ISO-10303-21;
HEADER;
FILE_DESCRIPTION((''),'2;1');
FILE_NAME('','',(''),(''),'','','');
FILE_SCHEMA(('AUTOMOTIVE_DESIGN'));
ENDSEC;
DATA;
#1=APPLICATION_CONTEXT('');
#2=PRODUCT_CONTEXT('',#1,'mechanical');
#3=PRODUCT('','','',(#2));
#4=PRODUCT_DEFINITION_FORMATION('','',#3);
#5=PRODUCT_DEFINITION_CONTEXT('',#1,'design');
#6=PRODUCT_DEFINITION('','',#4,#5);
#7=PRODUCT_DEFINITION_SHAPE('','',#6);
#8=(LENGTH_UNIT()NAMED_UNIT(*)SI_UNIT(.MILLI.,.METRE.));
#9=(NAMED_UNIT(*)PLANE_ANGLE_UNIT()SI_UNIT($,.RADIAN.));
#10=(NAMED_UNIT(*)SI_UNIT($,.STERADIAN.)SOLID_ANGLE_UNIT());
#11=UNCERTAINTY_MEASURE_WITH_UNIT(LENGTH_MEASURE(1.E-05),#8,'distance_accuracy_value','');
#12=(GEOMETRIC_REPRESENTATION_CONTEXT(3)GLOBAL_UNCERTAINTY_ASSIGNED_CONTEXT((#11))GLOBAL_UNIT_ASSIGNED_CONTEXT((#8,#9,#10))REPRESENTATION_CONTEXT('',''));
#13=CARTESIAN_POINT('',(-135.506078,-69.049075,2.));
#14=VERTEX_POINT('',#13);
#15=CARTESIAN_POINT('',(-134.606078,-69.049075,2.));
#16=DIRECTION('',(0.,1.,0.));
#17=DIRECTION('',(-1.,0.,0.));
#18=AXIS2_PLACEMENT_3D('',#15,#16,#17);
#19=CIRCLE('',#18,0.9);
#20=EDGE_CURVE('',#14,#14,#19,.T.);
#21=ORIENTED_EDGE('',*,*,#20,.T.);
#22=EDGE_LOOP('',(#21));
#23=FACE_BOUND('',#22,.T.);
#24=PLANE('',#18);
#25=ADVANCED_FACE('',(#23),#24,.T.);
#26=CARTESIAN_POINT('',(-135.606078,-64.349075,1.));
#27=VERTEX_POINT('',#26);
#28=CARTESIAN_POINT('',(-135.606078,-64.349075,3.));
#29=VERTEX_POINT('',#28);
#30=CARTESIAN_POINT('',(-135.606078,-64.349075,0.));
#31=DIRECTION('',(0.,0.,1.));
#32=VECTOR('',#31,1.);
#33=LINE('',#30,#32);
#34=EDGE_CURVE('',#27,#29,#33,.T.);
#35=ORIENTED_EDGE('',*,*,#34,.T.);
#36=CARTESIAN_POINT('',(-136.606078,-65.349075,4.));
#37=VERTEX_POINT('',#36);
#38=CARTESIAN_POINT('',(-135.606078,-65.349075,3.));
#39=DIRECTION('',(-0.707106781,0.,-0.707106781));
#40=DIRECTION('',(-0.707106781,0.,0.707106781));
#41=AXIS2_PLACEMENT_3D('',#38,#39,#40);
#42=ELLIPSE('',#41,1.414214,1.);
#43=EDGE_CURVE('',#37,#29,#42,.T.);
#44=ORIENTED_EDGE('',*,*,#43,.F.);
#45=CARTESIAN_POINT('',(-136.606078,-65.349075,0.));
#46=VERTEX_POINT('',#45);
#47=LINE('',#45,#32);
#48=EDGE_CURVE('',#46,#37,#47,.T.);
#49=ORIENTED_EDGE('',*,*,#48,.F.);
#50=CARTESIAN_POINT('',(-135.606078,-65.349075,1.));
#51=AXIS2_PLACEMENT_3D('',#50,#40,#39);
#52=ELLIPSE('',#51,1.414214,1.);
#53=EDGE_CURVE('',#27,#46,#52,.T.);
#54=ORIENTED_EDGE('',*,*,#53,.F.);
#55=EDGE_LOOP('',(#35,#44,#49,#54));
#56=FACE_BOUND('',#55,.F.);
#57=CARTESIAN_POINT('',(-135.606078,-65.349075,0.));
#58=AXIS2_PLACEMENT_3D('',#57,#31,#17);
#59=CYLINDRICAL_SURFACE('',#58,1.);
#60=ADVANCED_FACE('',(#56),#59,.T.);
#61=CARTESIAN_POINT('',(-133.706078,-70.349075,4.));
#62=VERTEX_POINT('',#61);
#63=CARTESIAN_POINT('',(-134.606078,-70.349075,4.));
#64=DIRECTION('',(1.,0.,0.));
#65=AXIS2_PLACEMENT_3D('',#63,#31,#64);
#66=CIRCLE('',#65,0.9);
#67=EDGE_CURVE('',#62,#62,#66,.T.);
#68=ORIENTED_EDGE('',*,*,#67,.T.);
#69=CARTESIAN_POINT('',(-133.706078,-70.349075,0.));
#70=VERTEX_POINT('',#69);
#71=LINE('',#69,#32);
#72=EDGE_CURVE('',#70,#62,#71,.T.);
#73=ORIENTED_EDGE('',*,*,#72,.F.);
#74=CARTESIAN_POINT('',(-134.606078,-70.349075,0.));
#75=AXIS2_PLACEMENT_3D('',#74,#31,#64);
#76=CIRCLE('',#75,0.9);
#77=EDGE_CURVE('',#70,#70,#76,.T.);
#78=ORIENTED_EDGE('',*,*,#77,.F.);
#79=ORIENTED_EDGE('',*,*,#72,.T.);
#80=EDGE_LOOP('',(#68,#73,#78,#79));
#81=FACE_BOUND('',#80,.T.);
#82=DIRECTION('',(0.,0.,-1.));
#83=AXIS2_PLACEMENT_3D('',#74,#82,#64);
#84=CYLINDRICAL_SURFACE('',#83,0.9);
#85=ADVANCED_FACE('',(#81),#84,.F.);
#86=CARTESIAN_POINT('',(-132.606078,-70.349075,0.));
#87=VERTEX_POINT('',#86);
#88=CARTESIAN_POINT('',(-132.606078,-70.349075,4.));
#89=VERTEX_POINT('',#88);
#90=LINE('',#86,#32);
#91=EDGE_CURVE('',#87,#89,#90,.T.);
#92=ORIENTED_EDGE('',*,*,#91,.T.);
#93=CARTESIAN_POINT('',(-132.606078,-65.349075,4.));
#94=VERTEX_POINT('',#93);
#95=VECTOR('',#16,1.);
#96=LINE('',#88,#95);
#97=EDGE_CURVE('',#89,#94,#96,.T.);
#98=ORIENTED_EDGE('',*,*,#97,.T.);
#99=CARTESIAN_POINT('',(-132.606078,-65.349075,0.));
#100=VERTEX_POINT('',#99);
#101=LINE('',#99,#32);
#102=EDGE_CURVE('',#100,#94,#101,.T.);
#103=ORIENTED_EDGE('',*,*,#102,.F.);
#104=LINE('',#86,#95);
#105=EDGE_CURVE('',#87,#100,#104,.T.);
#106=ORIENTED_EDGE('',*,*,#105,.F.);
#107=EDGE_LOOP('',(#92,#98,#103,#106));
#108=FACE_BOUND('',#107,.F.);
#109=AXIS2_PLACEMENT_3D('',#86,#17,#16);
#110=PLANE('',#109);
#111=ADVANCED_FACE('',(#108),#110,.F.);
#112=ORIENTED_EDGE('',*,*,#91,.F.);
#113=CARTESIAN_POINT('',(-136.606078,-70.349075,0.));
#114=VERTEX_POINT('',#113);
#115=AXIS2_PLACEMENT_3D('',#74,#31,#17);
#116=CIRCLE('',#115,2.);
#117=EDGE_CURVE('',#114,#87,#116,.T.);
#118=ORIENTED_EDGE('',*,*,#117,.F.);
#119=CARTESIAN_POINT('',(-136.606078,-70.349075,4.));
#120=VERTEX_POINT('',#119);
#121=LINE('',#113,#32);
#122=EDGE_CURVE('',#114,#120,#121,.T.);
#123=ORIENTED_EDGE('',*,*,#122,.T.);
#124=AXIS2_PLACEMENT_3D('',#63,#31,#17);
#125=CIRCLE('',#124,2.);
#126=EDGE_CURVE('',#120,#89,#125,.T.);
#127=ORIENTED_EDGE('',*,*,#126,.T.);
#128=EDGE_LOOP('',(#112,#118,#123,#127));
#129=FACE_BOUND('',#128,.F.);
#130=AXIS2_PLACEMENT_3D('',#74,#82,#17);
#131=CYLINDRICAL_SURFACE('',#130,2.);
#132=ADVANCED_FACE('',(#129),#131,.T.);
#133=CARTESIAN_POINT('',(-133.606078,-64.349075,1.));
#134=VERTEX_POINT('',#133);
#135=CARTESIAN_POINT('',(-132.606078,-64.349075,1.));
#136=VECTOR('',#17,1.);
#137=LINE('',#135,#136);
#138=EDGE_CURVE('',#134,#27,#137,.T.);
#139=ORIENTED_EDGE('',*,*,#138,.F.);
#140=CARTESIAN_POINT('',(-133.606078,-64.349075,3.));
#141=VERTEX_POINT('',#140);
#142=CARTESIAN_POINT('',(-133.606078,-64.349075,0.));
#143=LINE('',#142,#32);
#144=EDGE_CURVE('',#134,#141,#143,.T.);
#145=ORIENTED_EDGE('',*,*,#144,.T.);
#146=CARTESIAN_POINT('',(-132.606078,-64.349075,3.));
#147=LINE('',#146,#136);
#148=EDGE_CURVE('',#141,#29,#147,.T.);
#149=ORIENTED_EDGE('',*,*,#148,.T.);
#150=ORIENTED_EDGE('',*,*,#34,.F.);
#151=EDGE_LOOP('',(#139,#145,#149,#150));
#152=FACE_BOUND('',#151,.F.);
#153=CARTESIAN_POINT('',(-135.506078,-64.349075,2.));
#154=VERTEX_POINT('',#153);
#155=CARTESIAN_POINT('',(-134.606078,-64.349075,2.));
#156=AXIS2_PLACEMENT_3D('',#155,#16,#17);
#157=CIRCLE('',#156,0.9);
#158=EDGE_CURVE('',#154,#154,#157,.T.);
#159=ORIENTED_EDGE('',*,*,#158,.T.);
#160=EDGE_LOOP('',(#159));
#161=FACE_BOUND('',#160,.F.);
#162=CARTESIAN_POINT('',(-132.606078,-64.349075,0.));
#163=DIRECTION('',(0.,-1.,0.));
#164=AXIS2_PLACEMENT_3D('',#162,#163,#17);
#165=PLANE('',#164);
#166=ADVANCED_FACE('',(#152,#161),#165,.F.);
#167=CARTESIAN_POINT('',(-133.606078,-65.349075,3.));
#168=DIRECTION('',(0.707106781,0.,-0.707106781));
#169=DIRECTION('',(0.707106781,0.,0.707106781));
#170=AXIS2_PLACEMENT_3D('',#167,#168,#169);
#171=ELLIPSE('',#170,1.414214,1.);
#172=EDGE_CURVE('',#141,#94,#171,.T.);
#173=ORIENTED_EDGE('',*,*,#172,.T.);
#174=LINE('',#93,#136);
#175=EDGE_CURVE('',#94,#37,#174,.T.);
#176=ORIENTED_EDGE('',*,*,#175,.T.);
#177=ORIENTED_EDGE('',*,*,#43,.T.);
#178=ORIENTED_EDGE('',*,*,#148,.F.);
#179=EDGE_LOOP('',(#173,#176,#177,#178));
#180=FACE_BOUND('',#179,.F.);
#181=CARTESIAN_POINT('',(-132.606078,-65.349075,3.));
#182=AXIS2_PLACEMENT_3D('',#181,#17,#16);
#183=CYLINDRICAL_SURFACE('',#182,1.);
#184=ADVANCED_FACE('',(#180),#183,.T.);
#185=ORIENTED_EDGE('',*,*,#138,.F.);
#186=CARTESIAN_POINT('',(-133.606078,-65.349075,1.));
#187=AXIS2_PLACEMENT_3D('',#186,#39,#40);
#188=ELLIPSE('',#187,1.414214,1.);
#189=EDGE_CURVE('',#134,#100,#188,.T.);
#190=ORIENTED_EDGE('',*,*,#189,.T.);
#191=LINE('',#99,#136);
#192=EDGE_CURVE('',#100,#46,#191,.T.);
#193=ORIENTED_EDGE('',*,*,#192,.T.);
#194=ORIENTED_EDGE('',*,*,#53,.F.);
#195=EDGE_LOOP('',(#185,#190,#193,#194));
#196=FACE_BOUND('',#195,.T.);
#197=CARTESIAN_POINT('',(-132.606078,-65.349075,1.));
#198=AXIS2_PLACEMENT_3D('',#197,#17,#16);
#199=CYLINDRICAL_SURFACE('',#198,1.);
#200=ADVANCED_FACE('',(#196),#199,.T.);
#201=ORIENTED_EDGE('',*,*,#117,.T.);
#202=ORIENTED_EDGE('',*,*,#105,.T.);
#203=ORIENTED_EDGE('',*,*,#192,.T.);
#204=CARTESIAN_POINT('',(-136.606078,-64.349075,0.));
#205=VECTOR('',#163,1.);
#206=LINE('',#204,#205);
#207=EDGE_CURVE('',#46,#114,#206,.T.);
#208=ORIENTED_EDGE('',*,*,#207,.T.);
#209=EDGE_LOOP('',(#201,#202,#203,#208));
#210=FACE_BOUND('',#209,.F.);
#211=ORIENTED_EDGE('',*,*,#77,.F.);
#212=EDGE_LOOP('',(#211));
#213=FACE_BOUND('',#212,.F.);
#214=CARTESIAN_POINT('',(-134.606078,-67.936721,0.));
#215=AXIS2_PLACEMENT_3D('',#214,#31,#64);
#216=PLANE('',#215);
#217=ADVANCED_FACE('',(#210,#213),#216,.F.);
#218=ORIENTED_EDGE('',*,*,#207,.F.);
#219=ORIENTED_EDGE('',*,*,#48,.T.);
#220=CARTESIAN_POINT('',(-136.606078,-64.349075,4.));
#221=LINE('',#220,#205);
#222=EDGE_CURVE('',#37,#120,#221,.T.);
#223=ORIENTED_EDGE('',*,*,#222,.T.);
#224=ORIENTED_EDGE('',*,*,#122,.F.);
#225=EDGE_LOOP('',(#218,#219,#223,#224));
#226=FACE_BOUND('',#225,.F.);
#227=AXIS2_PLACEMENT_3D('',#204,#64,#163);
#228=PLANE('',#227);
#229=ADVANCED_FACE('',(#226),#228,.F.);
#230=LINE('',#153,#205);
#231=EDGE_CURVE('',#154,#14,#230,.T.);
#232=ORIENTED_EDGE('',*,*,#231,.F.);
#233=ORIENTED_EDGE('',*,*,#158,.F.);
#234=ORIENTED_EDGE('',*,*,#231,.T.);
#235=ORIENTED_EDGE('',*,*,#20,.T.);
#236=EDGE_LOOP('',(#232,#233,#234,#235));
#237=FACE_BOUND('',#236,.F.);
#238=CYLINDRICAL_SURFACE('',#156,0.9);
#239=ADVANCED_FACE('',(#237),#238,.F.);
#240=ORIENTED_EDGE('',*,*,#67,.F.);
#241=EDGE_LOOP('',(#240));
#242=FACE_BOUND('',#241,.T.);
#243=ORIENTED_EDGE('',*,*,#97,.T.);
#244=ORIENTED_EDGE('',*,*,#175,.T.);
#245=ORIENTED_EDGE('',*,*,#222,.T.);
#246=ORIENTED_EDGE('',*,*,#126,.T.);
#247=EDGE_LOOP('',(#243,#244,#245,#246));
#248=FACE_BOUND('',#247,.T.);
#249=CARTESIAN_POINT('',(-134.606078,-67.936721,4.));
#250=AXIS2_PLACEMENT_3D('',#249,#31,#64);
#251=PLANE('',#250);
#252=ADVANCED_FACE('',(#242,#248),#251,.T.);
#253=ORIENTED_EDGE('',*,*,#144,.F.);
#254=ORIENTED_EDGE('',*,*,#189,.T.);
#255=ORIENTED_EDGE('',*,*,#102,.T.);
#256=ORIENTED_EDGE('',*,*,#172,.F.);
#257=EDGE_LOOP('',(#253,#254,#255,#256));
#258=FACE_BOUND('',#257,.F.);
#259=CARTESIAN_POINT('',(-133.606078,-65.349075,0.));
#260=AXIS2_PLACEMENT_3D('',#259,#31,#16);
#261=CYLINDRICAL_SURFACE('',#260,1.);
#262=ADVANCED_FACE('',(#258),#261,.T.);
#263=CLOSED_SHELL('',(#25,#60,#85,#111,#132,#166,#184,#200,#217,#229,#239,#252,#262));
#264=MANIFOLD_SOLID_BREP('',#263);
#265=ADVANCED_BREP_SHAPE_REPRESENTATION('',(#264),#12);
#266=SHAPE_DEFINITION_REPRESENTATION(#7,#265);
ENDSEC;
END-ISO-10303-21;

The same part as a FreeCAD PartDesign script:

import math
import FreeCAD as App
import Part
import Sketcher

V = App.Vector


def edges_at(feature, points):
    """Names of the edges that pass closest to the given points."""
    edges = feature.Shape.Edges
    near = lambda p: min(range(len(edges)), key=lambda i: edges[i].distToShape(Part.Vertex(*p))[0])
    return sorted({f"Edge{near(p) + 1}" for p in points})

doc = App.newDocument("Part")
body = doc.addObject("PartDesign::Body", "Body")

# Sketch on XY plane
sketch1 = body.newObject("Sketcher::SketchObject", "Sketch")
sketch1.AttachmentSupport = (doc.getObject("XY_Plane"), [""])
sketch1.MapMode = "FlatFace"
sketch1.addGeometry(Part.LineSegment(V(-136.606078, -64.349075, 0), V(-136.606078, -70.349075, 0)), False)
sketch1.addGeometry(Part.ArcOfCircle(Part.Circle(V(-134.606078, -70.349075, 0), V(0, 0, 1), 2), math.radians(180), math.radians(360)), False)
sketch1.addGeometry(Part.LineSegment(V(-132.606078, -70.349075, 0), V(-132.606078, -64.349075, 0)), False)
sketch1.addGeometry(Part.LineSegment(V(-132.606078, -64.349075, 0), V(-136.606078, -64.349075, 0)), False)
sketch1.addGeometry(Part.Circle(V(-134.606078, -70.349075, 0), V(0, 0, 1), 0.9), False)
sketch1.addConstraint(Sketcher.Constraint("Tangent", 0, 2, 1, 1))
sketch1.addConstraint(Sketcher.Constraint("Tangent", 1, 2, 2, 1))
sketch1.addConstraint(Sketcher.Constraint("Coincident", 2, 2, 3, 1))
sketch1.addConstraint(Sketcher.Constraint("Coincident", 3, 2, 0, 1))
sketch1.addConstraint(Sketcher.Constraint("Vertical", 0))
sketch1.addConstraint(Sketcher.Constraint("Vertical", 2))
sketch1.addConstraint(Sketcher.Constraint("Horizontal", 3))
sketch1.addConstraint(Sketcher.Constraint("Coincident", 4, 3, 1, 3))
sketch1.addConstraint(Sketcher.Constraint("Radius", 1, 2.0))
sketch1.addConstraint(Sketcher.Constraint("Diameter", 4, 1.8))
sketch1.addConstraint(Sketcher.Constraint("DistanceY", 0, 2, 0, 1, 6.0))
sketch1.addConstraint(Sketcher.Constraint("DistanceX", 1, 3, -1, 1, 134.606078))
sketch1.addConstraint(Sketcher.Constraint("DistanceY", 1, 3, -1, 1, 70.349075))
pad1 = body.newObject("PartDesign::Pad", "Pad")
pad1.Profile = sketch1
pad1.Length = 4

# Sketch on XZ plane
sketch2 = body.newObject("Sketcher::SketchObject", "Sketch001")
sketch2.AttachmentSupport = (doc.getObject("XZ_Plane"), [""])
sketch2.MapMode = "FlatFace"
sketch2.AttachmentOffset = App.Placement(V(0, 0, 64.349075), App.Rotation())
sketch2.addGeometry(Part.Circle(V(-134.606078, 2, 0), V(0, 0, 1), 0.9), False)
sketch2.addConstraint(Sketcher.Constraint("Diameter", 0, 1.8))
sketch2.addConstraint(Sketcher.Constraint("DistanceY", -1, 1, 0, 3, 2.0))
sketch2.addConstraint(Sketcher.Constraint("DistanceX", 0, 3, -1, 1, 134.606078))
pocket1 = body.newObject("PartDesign::Pocket", "Pocket")
pocket1.Profile = sketch2
pocket1.Length = 4.7
pocket1.Reversed = True
doc.recompute()

fillet = body.newObject("PartDesign::Fillet", "Fillet")
fillet.Base = (pocket1, edges_at(pocket1, [
    (-132.606, -64.349, 2),
    (-134.606, -64.349, 0),
    (-136.606, -64.349, 2),
    (-134.606, -64.349, 4),
]))
fillet.Radius = 1

doc.recompute()
